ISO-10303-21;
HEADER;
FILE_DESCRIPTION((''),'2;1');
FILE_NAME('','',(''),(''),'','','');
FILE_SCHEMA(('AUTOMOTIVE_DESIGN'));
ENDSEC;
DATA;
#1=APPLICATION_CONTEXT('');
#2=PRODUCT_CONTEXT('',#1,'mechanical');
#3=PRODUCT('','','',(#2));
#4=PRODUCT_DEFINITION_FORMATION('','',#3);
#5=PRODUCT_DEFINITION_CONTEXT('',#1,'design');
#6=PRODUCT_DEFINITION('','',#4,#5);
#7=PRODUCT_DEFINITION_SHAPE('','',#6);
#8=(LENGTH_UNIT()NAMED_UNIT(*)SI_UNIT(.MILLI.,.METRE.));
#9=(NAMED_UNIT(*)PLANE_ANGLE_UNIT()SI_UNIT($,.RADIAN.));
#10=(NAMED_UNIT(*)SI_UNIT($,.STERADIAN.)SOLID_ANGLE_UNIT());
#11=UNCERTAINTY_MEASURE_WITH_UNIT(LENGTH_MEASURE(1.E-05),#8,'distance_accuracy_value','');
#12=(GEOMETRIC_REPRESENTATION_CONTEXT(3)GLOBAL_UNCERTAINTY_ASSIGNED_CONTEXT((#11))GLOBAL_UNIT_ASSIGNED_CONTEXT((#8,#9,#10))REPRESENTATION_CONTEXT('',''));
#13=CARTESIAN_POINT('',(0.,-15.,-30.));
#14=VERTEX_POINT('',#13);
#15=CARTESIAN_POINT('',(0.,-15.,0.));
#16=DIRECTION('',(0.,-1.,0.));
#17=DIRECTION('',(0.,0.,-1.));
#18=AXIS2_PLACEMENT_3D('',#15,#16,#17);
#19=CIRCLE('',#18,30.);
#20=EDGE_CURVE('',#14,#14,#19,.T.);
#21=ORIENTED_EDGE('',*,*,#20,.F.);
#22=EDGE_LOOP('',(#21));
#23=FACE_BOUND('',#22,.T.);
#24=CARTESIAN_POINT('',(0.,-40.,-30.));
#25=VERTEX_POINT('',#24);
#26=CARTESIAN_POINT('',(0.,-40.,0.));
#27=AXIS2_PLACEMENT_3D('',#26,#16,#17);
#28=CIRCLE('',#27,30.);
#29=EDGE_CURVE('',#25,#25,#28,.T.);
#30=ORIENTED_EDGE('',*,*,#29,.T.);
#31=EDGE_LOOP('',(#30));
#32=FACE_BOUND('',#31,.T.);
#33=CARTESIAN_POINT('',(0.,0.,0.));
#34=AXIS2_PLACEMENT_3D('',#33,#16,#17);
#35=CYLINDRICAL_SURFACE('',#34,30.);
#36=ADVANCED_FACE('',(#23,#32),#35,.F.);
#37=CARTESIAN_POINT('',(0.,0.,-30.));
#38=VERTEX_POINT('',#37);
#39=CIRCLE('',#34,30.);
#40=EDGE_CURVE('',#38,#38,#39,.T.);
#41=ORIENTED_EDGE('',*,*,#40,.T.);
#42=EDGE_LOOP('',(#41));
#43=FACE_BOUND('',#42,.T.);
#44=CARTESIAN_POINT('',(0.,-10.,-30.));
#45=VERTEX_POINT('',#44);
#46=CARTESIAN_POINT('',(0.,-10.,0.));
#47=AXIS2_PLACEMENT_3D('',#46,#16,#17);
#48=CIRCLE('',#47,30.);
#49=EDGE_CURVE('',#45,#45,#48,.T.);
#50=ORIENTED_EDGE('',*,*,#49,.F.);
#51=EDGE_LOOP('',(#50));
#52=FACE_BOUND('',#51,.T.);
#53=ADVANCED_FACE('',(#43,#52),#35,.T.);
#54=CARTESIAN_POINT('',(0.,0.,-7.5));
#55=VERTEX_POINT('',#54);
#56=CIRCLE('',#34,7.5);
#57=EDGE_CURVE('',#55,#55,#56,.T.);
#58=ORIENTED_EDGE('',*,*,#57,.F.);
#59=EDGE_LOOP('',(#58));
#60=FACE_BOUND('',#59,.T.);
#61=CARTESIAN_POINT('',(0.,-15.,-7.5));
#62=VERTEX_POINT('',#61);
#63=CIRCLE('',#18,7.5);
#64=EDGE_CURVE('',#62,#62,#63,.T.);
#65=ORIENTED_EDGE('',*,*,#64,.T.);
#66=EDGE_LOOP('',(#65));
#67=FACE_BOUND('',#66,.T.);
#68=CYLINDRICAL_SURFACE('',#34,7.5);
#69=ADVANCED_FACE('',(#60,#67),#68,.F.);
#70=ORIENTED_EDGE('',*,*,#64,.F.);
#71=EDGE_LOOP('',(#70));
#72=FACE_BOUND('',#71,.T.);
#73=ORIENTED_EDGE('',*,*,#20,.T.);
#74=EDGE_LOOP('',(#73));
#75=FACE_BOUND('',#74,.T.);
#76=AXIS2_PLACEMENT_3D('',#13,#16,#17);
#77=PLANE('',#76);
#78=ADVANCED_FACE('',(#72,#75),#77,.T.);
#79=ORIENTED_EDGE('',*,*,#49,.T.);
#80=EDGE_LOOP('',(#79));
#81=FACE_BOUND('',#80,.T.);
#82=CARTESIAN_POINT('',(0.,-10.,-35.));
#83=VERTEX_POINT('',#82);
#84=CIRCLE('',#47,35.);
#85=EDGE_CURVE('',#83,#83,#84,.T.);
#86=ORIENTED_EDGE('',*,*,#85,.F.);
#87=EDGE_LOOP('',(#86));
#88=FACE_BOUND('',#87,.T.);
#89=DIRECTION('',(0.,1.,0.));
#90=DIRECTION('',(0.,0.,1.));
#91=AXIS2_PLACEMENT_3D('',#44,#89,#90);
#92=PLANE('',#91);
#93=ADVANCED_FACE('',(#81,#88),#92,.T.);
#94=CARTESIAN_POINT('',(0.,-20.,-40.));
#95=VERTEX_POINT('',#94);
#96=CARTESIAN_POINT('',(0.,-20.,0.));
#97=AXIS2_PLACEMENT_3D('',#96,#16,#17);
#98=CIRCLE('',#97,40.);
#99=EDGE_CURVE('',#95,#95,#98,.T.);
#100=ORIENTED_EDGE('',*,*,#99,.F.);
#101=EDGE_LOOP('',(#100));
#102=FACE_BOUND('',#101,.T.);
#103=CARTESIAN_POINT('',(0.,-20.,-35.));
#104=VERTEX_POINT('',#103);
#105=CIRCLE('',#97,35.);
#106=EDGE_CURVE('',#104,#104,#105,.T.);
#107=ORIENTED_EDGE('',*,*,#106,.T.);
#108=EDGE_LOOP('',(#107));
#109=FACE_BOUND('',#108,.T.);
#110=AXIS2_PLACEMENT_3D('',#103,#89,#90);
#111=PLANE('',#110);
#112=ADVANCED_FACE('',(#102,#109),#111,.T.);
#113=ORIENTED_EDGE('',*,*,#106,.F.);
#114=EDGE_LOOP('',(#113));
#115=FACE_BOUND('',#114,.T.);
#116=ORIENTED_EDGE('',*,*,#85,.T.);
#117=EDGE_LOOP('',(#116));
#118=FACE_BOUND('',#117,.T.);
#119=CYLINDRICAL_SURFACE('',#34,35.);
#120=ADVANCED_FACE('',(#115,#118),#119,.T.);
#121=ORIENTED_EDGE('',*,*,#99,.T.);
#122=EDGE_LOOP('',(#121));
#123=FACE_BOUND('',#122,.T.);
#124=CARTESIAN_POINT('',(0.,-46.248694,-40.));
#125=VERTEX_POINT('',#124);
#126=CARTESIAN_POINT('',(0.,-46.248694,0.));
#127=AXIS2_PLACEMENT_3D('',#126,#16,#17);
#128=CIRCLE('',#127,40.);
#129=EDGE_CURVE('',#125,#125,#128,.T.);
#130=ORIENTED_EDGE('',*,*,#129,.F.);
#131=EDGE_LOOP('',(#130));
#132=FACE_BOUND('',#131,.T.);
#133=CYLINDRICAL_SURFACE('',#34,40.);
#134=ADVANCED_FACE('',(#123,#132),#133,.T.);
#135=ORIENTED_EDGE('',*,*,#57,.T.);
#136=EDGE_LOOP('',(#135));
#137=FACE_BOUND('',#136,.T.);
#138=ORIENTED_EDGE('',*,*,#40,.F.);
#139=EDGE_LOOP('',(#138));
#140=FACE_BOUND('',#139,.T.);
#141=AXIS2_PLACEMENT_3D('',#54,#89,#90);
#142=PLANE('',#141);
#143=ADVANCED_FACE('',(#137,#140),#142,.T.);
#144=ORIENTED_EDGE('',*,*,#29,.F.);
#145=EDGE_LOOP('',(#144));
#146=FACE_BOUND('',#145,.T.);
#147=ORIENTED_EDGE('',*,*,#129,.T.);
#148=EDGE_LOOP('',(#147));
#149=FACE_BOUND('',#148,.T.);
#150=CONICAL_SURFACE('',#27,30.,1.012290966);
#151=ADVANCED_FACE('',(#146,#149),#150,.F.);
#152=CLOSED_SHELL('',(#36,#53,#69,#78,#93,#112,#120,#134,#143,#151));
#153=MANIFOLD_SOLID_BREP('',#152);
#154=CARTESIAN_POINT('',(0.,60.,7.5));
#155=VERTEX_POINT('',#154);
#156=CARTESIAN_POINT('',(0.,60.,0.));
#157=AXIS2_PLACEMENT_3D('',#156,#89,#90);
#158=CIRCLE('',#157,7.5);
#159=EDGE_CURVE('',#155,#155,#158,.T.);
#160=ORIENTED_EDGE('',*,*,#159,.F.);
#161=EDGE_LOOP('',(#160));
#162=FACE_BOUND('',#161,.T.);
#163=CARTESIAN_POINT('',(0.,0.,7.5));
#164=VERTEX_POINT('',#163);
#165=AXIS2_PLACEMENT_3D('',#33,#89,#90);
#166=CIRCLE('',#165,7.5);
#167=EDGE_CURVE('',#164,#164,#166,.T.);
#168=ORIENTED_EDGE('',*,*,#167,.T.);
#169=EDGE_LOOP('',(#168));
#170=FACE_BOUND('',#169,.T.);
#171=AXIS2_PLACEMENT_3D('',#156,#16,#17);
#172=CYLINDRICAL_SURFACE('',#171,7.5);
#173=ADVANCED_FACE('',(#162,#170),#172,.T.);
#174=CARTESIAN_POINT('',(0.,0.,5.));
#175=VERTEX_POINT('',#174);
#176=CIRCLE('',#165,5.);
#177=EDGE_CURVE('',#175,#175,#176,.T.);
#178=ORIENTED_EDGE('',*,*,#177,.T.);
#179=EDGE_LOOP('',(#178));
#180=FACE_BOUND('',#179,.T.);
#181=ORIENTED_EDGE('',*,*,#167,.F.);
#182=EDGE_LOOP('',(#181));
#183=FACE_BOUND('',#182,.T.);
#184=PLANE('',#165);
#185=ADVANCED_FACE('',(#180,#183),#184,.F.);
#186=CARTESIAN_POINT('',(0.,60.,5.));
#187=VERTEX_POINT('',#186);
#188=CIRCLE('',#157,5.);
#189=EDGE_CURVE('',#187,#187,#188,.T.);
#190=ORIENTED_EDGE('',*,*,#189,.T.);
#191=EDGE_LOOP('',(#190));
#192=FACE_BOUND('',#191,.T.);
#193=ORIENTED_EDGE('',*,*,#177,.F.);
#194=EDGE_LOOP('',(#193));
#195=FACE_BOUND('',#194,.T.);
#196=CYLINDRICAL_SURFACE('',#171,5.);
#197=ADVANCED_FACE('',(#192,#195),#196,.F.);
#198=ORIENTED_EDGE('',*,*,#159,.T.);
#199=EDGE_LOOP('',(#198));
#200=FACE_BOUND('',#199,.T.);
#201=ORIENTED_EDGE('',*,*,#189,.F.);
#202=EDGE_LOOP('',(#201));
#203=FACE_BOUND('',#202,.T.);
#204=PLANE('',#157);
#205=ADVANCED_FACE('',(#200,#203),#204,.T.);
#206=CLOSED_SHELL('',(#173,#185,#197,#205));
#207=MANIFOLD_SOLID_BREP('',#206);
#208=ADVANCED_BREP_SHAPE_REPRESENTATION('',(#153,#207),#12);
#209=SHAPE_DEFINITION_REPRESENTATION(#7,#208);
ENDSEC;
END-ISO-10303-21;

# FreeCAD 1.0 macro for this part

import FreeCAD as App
import Part
import Sketcher
from FreeCAD import Vector
Q = App.Units.Quantity

doc = App.newDocument("Part")
body = doc.addObject("PartDesign::Body", "Body")

sketch1 = body.newObject("Sketcher::SketchObject", "Sketch")
sketch1.AttachmentSupport = (doc.getObject("XZ_Plane"), [""])
sketch1.MapMode = "FlatFace"
sketch1.addGeometry(Part.Circle(Vector(0, 0, 0), Vector(0, 0, 1), 8), False)
sketch1.addGeometry(Part.Circle(Vector(0, 0, 0), Vector(0, 0, 1), 5), False)
sketch1.addConstraint(Sketcher.Constraint("Coincident", 0, 3, -1, 1))
sketch1.addConstraint(Sketcher.Constraint("Coincident", 1, 3, -1, 1))
sketch1.addConstraint(Sketcher.Constraint("Diameter", 0, Q("15 mm")))
sketch1.addConstraint(Sketcher.Constraint("Diameter", 1, Q("10 mm")))
pad1 = body.newObject("PartDesign::Pad", "Pad")
pad1.Profile = sketch1
pad1.Length = 60
pad1.Reversed = True
body2 = doc.addObject("PartDesign::Body", "Body001")

sketch2 = body2.newObject("Sketcher::SketchObject", "Sketch001")
sketch2.AttachmentSupport = (doc.getObject("YZ_Plane001"), [""])
sketch2.MapMode = "FlatFace"
sketch2.addGeometry(Part.LineSegment(Vector(0, -30, 0), Vector(0, -8, 0)), False)
sketch2.addGeometry(Part.LineSegment(Vector(0, -8, 0), Vector(-15, -8, 0)), False)
sketch2.addGeometry(Part.LineSegment(Vector(-15, -8, 0), Vector(-15, -30, 0)), False)
sketch2.addGeometry(Part.LineSegment(Vector(-15, -30, 0), Vector(-40, -30, 0)), False)
sketch2.addGeometry(Part.LineSegment(Vector(-40, -30, 0), Vector(-46, -40, 0)), False)
sketch2.addGeometry(Part.LineSegment(Vector(-46, -40, 0), Vector(-20, -40, 0)), False)
sketch2.addGeometry(Part.LineSegment(Vector(-20, -40, 0), Vector(-20, -35, 0)), False)
sketch2.addGeometry(Part.LineSegment(Vector(-20, -35, 0), Vector(-10, -35, 0)), False)
sketch2.addGeometry(Part.LineSegment(Vector(-10, -35, 0), Vector(-10, -30, 0)), False)
sketch2.addGeometry(Part.LineSegment(Vector(-10, -30, 0), Vector(0, -30, 0)), False)
sketch2.addConstraint(Sketcher.Constraint("Coincident", 0, 2, 1, 1))
sketch2.addConstraint(Sketcher.Constraint("Coincident", 1, 2, 2, 1))
sketch2.addConstraint(Sketcher.Constraint("Coincident", 2, 2, 3, 1))
sketch2.addConstraint(Sketcher.Constraint("Coincident", 3, 2, 4, 1))
sketch2.addConstraint(Sketcher.Constraint("Coincident", 4, 2, 5, 1))
sketch2.addConstraint(Sketcher.Constraint("Coincident", 5, 2, 6, 1))
sketch2.addConstraint(Sketcher.Constraint("Coincident", 6, 2, 7, 1))
sketch2.addConstraint(Sketcher.Constraint("Coincident", 7, 2, 8, 1))
sketch2.addConstraint(Sketcher.Constraint("Coincident", 8, 2, 9, 1))
sketch2.addConstraint(Sketcher.Constraint("Coincident", 9, 2, 0, 1))
sketch2.addConstraint(Sketcher.Constraint("Vertical", 0))
sketch2.addConstraint(Sketcher.Constraint("Horizontal", 1))
sketch2.addConstraint(Sketcher.Constraint("Vertical", 2))
sketch2.addConstraint(Sketcher.Constraint("Horizontal", 3))
sketch2.addConstraint(Sketcher.Constraint("Horizontal", 5))
sketch2.addConstraint(Sketcher.Constraint("Vertical", 6))
sketch2.addConstraint(Sketcher.Constraint("Horizontal", 7))
sketch2.addConstraint(Sketcher.Constraint("Vertical", 8))
sketch2.addConstraint(Sketcher.Constraint("Horizontal", 9))
sketch2.addConstraint(Sketcher.Constraint("PointOnObject", 0, 2, -2))
sketch2.addConstraint(Sketcher.Constraint("Horizontal", 3, 2, 8, 2))
sketch2.addConstraint(Sketcher.Constraint("Equal", 7, 9))
sketch2.addConstraint(Sketcher.Constraint("Equal", 6, 8))
sketch2.addConstraint(Sketcher.Constraint("DistanceX", 1, 2, 1, 1, Q("15 mm")))
sketch2.addConstraint(Sketcher.Constraint("DistanceX", 3, 2, 3, 1, Q("25 mm")))
sketch2.addConstraint(Sketcher.Constraint("DistanceX", 7, 1, 7, 2, Q("10 mm")))
sketch2.addConstraint(Sketcher.Constraint("DistanceY", 6, 1, 6, 2, Q("5 mm")))
sketch2.addConstraint(Sketcher.Constraint("Angle", 4, Q("-122 deg")))
sketch2.addConstraint(Sketcher.Constraint("DistanceY", 0, 1, 0, 2, Q("22.5 mm")))
sketch2.addConstraint(Sketcher.Constraint("DistanceY", 2, 2, -1, 1, Q("30 mm")))
revolution = body2.newObject("PartDesign::Revolution", "Revolution")
revolution.Profile = sketch2
revolution.ReferenceAxis = (sketch2, ["H_Axis"])
revolution.Angle = 360

doc.recompute()
